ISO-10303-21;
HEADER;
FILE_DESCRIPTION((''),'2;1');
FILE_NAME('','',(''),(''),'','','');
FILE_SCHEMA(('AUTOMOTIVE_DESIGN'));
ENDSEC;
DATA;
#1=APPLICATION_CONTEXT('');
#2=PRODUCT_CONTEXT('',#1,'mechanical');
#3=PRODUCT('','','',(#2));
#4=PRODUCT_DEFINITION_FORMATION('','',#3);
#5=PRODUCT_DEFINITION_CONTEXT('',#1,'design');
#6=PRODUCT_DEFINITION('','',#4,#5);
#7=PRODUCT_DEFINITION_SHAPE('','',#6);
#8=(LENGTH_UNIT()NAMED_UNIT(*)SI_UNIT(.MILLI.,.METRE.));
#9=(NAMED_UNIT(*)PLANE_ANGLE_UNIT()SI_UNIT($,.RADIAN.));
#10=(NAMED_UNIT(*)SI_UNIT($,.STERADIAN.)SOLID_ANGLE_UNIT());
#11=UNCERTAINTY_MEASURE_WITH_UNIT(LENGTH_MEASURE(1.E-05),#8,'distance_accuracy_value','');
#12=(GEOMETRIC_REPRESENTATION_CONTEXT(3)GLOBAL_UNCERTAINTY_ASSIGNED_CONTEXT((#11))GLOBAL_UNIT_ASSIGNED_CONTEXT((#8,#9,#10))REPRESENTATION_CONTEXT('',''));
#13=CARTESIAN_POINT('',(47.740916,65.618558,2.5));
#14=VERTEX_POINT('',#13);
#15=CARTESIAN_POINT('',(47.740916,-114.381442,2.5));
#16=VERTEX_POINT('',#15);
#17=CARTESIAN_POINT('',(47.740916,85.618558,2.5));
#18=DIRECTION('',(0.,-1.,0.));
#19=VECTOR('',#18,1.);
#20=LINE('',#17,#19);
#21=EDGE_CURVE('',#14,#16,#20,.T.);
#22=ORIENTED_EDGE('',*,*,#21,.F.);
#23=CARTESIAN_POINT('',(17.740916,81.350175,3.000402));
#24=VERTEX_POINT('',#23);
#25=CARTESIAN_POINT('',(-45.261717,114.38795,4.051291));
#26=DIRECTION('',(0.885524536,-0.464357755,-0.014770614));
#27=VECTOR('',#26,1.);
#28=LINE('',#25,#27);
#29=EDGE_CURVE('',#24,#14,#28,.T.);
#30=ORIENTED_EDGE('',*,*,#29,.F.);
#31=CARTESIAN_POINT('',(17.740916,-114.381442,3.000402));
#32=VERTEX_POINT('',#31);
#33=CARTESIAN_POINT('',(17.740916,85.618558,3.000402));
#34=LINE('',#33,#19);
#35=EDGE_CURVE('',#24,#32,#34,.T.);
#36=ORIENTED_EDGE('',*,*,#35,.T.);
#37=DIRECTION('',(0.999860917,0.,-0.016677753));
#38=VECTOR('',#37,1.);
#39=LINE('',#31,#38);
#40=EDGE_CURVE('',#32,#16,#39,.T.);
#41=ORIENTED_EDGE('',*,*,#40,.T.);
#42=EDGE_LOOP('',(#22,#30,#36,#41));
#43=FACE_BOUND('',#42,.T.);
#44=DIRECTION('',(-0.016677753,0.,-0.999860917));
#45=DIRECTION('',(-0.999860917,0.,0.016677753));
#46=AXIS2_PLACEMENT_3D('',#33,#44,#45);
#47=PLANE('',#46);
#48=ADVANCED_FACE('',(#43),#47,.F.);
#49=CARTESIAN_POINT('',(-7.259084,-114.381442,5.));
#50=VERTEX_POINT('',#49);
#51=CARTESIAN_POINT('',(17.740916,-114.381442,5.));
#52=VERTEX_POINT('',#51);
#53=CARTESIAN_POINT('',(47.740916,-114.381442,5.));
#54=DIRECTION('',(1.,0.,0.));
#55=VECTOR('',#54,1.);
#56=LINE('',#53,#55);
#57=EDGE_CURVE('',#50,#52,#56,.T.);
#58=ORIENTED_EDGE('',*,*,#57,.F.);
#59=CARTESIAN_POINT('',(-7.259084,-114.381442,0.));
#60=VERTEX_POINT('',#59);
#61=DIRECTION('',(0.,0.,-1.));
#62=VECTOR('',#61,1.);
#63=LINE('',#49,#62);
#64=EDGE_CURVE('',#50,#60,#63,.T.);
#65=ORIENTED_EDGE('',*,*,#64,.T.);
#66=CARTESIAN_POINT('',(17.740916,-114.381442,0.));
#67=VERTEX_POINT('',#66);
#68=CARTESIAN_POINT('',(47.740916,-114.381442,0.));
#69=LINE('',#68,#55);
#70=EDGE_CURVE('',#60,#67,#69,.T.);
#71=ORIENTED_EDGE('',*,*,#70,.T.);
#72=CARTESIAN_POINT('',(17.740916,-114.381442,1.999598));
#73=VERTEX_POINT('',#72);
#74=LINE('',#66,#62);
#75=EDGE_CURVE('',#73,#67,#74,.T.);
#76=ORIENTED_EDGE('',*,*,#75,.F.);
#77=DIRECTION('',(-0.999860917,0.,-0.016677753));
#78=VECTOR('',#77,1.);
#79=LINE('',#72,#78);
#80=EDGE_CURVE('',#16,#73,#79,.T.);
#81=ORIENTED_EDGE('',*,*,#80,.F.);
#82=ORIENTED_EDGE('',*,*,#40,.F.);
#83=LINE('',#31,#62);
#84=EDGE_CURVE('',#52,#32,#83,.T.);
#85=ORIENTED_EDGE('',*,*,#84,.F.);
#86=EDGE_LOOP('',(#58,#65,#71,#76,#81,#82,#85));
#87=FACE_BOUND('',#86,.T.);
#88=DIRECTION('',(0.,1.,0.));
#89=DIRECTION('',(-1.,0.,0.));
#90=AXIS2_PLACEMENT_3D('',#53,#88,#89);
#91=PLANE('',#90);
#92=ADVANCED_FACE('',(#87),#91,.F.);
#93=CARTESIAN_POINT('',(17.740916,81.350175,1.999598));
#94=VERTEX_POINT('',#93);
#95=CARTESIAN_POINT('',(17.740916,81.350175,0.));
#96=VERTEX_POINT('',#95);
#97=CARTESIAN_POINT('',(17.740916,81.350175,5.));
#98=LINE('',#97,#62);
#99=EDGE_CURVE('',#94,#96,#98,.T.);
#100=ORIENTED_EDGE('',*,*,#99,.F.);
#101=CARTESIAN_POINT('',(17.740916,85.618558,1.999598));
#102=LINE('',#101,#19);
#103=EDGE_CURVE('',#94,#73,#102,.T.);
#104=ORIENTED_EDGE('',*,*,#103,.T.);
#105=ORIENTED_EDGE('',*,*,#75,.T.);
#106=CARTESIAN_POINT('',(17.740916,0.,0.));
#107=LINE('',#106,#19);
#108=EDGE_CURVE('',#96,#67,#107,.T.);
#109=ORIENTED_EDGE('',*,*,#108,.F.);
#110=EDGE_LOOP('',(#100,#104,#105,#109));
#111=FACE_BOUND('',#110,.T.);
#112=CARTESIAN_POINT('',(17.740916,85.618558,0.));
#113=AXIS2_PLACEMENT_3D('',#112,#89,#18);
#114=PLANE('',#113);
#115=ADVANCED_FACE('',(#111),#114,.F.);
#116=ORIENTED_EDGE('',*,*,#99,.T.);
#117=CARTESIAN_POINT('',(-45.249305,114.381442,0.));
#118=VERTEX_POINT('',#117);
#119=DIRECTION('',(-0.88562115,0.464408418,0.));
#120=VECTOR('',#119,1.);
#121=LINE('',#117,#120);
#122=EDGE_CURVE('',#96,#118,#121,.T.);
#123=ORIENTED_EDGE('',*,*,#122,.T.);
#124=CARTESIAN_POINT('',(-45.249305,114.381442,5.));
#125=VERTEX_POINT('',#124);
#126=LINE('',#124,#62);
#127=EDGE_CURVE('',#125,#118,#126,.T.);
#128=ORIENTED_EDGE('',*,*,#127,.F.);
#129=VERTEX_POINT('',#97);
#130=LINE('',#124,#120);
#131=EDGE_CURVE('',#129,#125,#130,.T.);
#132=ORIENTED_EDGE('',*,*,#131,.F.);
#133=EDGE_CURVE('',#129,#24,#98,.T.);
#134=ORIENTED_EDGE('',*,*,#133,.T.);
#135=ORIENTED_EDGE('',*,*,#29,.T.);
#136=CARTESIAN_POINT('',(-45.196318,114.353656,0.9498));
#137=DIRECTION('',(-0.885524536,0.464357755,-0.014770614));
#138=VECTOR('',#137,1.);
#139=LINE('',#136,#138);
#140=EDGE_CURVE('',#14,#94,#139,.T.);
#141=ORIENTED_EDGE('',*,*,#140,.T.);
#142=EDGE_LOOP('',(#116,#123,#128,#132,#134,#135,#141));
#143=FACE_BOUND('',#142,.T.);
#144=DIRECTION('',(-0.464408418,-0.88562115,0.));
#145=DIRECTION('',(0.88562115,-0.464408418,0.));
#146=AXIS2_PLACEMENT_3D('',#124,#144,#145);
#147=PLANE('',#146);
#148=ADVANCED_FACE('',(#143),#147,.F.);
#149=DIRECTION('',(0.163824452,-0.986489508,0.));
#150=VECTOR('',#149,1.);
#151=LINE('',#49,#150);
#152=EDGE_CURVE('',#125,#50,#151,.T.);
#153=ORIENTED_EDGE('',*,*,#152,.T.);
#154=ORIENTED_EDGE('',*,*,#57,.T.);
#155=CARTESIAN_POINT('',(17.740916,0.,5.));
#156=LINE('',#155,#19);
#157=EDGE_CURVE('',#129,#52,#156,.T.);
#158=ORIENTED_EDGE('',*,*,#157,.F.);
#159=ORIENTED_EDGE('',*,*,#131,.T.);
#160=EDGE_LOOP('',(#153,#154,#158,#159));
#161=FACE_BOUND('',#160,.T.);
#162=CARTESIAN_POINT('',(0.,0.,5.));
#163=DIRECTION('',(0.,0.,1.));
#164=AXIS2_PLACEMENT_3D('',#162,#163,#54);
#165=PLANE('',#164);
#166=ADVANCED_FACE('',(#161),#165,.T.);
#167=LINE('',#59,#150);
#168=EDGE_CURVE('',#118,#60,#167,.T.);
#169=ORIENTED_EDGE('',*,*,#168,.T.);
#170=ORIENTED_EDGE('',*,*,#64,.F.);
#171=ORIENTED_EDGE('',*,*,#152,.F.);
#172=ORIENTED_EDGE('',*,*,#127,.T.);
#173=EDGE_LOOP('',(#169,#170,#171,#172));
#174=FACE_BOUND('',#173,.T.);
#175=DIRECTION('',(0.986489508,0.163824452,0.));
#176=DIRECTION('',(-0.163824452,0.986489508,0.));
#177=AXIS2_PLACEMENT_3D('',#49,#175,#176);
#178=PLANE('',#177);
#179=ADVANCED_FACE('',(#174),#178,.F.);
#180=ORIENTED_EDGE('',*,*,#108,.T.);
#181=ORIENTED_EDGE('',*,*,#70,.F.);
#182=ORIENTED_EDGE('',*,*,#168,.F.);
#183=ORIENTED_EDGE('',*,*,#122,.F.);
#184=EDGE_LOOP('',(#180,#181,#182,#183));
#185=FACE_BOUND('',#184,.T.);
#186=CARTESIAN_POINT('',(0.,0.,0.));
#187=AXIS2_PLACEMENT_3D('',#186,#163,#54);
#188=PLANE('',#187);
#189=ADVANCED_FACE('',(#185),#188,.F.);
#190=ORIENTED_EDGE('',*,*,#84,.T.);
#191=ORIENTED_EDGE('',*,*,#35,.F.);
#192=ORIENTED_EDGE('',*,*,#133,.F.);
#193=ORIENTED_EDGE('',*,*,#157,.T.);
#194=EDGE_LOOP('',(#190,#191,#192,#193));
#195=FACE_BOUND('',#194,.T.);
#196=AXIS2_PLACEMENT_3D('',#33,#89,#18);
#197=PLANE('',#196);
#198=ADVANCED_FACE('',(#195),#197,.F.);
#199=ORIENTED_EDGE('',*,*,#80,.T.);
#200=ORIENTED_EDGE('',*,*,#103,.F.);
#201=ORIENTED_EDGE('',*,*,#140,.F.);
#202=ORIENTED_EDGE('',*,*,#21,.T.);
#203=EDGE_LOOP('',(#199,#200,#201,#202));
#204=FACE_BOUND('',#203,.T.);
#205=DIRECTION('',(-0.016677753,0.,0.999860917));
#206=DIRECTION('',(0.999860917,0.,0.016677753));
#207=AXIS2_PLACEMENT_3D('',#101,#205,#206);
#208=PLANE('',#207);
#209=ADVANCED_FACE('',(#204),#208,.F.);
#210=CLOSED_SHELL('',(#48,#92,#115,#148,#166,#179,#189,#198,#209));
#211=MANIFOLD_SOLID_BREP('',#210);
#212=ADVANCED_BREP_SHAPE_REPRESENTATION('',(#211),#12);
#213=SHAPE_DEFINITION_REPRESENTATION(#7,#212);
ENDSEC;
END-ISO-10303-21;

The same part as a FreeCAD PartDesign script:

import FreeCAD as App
import Part
import Sketcher
from FreeCAD import Vector
Q = App.Units.Quantity


def add_polygon(sketch, points):
    """Adds a closed chain of lines whose ends are joined by coincident constraints."""
    first, n = sketch.GeometryCount, len(points)
    for a, b in zip(points, points[1:] + points[:1]):
        sketch.addGeometry(Part.LineSegment(App.Vector(*a, 0), App.Vector(*b, 0)), False)
    for i in range(n):
        sketch.addConstraint(Sketcher.Constraint("Coincident", first + i, 2, first + (i + 1) % n, 1))

doc = App.newDocument("Part")
body = doc.addObject("PartDesign::Body", "Body")

# Sketch on XY plane
sketch1 = body.newObject("Sketcher::SketchObject", "Sketch")
sketch1.AttachmentSupport = (doc.getObject("XY_Plane"), [""])
sketch1.MapMode = "FlatFace"
add_polygon(sketch1, [(-45, 114), (-7, -114), (48, -114), (48, 66)])  # lines 0-3
sketch1.addConstraint([
    Sketcher.Constraint("Horizontal", 1),
    Sketcher.Constraint("Vertical", 2),
    Sketcher.Constraint("DistanceX", 1, 1, 1, 2, Q("55 mm")),
    Sketcher.Constraint("DistanceY", 2, 1, 2, 2, Q("180 mm")),
    Sketcher.Constraint("Distance", 3, Q("105 mm")),
    Sketcher.Constraint("Distance", 0, Q("231.895912 mm")),
    Sketcher.Constraint("DistanceY", 0, 2, -1, 1, Q("114.381442 mm")),
    Sketcher.Constraint("DistanceX", 0, 2, -1, 1, Q("7.259084 mm")),
])
pad1 = body.newObject("PartDesign::Pad", "Pad")
pad1.Profile = sketch1
pad1.Length = 5

# Sketch on XZ plane
sketch2 = body.newObject("Sketcher::SketchObject", "Sketch001")
sketch2.AttachmentSupport = (doc.getObject("XZ_Plane"), [""])
sketch2.MapMode = "FlatFace"
sketch2.AttachmentOffset = App.Placement(Vector(0, 0, 114.381442), App.Rotation())
add_polygon(sketch2, [(47.7, 5.4), (17.7, 5), (17.7, 3), (47.7, 2.5), (17.7, 2), (17.7, 0), (47.7, -0.8), (52.1, 1)])  # lines 0-7
add_polygon(sketch2, [(52.1, 31), (47.7, 35.4), (17.7, 35), (17.7, 33), (47.7, 32.5), (17.7, 32), (17.7, 30), (47.7, 29.2)])  # lines 8-15
sketch2.addConstraint([
    Sketcher.Constraint("Vertical", 1),
    Sketcher.Constraint("Vertical", 4),
    Sketcher.Constraint("Vertical", 10),
    Sketcher.Constraint("Vertical", 13),
    Sketcher.Constraint("PointOnObject", 4, 2, -1),
    Sketcher.Constraint("Parallel", 7, 8),
    Sketcher.Constraint("Parallel", 0, 9),
    Sketcher.Constraint("Parallel", 2, 11),
    Sketcher.Constraint("Parallel", 3, 12),
    Sketcher.Constraint("Parallel", 5, 14),
    Sketcher.Constraint("Parallel", 6, 15),
    Sketcher.Constraint("Vertical", 1, 2, 3, 2),
    Sketcher.Constraint("Vertical", 2, 2, 5, 2),
    Sketcher.Constraint("Vertical", 5, 2, 7, 2),
    Sketcher.Constraint("Vertical", 7, 2, 8, 2),
    Sketcher.Constraint("Vertical", 4, 2, 9, 2),
    Sketcher.Constraint("Vertical", 8, 2, 11, 2),
    Sketcher.Constraint("Vertical", 10, 2, 12, 2),
    Sketcher.Constraint("Vertical", 11, 2, 14, 2),
    Sketcher.Constraint("Vertical", 6, 2, 15, 2),
    Sketcher.Constraint("Equal", 1, 4),
    Sketcher.Constraint("Equal", 4, 10),
    Sketcher.Constraint("Equal", 2, 3),
    Sketcher.Constraint("Angle", 7, Q("135 deg")),
    Sketcher.Constraint("DistanceY", -1, 1, 0, 2, Q("5 mm")),
    Sketcher.Constraint("DistanceY", -1, 1, 9, 2, Q("35 mm")),
    Sketcher.Constraint("DistanceX", 1, 2, 2, 2, Q("30 mm")),
    Sketcher.Constraint("DistanceY", 5, 2, -1, 1, Q("0.813898 mm")),
    Sketcher.Constraint("DistanceY", 5, 2, 1, 2, Q("3.814301 mm")),
    Sketcher.Constraint("Distance", 6, Q("4.739291 mm")),
    Sketcher.Constraint("DistanceY", -1, 1, 6, 2, Q("0.97224 mm")),
    Sketcher.Constraint("DistanceX", -1, 1, 0, 2, Q("17.740916 mm")),
])
pocket1 = body.newObject("PartDesign::Pocket", "Pocket")
pocket1.Profile = sketch2
pocket1.Length = 200

doc.recompute()
